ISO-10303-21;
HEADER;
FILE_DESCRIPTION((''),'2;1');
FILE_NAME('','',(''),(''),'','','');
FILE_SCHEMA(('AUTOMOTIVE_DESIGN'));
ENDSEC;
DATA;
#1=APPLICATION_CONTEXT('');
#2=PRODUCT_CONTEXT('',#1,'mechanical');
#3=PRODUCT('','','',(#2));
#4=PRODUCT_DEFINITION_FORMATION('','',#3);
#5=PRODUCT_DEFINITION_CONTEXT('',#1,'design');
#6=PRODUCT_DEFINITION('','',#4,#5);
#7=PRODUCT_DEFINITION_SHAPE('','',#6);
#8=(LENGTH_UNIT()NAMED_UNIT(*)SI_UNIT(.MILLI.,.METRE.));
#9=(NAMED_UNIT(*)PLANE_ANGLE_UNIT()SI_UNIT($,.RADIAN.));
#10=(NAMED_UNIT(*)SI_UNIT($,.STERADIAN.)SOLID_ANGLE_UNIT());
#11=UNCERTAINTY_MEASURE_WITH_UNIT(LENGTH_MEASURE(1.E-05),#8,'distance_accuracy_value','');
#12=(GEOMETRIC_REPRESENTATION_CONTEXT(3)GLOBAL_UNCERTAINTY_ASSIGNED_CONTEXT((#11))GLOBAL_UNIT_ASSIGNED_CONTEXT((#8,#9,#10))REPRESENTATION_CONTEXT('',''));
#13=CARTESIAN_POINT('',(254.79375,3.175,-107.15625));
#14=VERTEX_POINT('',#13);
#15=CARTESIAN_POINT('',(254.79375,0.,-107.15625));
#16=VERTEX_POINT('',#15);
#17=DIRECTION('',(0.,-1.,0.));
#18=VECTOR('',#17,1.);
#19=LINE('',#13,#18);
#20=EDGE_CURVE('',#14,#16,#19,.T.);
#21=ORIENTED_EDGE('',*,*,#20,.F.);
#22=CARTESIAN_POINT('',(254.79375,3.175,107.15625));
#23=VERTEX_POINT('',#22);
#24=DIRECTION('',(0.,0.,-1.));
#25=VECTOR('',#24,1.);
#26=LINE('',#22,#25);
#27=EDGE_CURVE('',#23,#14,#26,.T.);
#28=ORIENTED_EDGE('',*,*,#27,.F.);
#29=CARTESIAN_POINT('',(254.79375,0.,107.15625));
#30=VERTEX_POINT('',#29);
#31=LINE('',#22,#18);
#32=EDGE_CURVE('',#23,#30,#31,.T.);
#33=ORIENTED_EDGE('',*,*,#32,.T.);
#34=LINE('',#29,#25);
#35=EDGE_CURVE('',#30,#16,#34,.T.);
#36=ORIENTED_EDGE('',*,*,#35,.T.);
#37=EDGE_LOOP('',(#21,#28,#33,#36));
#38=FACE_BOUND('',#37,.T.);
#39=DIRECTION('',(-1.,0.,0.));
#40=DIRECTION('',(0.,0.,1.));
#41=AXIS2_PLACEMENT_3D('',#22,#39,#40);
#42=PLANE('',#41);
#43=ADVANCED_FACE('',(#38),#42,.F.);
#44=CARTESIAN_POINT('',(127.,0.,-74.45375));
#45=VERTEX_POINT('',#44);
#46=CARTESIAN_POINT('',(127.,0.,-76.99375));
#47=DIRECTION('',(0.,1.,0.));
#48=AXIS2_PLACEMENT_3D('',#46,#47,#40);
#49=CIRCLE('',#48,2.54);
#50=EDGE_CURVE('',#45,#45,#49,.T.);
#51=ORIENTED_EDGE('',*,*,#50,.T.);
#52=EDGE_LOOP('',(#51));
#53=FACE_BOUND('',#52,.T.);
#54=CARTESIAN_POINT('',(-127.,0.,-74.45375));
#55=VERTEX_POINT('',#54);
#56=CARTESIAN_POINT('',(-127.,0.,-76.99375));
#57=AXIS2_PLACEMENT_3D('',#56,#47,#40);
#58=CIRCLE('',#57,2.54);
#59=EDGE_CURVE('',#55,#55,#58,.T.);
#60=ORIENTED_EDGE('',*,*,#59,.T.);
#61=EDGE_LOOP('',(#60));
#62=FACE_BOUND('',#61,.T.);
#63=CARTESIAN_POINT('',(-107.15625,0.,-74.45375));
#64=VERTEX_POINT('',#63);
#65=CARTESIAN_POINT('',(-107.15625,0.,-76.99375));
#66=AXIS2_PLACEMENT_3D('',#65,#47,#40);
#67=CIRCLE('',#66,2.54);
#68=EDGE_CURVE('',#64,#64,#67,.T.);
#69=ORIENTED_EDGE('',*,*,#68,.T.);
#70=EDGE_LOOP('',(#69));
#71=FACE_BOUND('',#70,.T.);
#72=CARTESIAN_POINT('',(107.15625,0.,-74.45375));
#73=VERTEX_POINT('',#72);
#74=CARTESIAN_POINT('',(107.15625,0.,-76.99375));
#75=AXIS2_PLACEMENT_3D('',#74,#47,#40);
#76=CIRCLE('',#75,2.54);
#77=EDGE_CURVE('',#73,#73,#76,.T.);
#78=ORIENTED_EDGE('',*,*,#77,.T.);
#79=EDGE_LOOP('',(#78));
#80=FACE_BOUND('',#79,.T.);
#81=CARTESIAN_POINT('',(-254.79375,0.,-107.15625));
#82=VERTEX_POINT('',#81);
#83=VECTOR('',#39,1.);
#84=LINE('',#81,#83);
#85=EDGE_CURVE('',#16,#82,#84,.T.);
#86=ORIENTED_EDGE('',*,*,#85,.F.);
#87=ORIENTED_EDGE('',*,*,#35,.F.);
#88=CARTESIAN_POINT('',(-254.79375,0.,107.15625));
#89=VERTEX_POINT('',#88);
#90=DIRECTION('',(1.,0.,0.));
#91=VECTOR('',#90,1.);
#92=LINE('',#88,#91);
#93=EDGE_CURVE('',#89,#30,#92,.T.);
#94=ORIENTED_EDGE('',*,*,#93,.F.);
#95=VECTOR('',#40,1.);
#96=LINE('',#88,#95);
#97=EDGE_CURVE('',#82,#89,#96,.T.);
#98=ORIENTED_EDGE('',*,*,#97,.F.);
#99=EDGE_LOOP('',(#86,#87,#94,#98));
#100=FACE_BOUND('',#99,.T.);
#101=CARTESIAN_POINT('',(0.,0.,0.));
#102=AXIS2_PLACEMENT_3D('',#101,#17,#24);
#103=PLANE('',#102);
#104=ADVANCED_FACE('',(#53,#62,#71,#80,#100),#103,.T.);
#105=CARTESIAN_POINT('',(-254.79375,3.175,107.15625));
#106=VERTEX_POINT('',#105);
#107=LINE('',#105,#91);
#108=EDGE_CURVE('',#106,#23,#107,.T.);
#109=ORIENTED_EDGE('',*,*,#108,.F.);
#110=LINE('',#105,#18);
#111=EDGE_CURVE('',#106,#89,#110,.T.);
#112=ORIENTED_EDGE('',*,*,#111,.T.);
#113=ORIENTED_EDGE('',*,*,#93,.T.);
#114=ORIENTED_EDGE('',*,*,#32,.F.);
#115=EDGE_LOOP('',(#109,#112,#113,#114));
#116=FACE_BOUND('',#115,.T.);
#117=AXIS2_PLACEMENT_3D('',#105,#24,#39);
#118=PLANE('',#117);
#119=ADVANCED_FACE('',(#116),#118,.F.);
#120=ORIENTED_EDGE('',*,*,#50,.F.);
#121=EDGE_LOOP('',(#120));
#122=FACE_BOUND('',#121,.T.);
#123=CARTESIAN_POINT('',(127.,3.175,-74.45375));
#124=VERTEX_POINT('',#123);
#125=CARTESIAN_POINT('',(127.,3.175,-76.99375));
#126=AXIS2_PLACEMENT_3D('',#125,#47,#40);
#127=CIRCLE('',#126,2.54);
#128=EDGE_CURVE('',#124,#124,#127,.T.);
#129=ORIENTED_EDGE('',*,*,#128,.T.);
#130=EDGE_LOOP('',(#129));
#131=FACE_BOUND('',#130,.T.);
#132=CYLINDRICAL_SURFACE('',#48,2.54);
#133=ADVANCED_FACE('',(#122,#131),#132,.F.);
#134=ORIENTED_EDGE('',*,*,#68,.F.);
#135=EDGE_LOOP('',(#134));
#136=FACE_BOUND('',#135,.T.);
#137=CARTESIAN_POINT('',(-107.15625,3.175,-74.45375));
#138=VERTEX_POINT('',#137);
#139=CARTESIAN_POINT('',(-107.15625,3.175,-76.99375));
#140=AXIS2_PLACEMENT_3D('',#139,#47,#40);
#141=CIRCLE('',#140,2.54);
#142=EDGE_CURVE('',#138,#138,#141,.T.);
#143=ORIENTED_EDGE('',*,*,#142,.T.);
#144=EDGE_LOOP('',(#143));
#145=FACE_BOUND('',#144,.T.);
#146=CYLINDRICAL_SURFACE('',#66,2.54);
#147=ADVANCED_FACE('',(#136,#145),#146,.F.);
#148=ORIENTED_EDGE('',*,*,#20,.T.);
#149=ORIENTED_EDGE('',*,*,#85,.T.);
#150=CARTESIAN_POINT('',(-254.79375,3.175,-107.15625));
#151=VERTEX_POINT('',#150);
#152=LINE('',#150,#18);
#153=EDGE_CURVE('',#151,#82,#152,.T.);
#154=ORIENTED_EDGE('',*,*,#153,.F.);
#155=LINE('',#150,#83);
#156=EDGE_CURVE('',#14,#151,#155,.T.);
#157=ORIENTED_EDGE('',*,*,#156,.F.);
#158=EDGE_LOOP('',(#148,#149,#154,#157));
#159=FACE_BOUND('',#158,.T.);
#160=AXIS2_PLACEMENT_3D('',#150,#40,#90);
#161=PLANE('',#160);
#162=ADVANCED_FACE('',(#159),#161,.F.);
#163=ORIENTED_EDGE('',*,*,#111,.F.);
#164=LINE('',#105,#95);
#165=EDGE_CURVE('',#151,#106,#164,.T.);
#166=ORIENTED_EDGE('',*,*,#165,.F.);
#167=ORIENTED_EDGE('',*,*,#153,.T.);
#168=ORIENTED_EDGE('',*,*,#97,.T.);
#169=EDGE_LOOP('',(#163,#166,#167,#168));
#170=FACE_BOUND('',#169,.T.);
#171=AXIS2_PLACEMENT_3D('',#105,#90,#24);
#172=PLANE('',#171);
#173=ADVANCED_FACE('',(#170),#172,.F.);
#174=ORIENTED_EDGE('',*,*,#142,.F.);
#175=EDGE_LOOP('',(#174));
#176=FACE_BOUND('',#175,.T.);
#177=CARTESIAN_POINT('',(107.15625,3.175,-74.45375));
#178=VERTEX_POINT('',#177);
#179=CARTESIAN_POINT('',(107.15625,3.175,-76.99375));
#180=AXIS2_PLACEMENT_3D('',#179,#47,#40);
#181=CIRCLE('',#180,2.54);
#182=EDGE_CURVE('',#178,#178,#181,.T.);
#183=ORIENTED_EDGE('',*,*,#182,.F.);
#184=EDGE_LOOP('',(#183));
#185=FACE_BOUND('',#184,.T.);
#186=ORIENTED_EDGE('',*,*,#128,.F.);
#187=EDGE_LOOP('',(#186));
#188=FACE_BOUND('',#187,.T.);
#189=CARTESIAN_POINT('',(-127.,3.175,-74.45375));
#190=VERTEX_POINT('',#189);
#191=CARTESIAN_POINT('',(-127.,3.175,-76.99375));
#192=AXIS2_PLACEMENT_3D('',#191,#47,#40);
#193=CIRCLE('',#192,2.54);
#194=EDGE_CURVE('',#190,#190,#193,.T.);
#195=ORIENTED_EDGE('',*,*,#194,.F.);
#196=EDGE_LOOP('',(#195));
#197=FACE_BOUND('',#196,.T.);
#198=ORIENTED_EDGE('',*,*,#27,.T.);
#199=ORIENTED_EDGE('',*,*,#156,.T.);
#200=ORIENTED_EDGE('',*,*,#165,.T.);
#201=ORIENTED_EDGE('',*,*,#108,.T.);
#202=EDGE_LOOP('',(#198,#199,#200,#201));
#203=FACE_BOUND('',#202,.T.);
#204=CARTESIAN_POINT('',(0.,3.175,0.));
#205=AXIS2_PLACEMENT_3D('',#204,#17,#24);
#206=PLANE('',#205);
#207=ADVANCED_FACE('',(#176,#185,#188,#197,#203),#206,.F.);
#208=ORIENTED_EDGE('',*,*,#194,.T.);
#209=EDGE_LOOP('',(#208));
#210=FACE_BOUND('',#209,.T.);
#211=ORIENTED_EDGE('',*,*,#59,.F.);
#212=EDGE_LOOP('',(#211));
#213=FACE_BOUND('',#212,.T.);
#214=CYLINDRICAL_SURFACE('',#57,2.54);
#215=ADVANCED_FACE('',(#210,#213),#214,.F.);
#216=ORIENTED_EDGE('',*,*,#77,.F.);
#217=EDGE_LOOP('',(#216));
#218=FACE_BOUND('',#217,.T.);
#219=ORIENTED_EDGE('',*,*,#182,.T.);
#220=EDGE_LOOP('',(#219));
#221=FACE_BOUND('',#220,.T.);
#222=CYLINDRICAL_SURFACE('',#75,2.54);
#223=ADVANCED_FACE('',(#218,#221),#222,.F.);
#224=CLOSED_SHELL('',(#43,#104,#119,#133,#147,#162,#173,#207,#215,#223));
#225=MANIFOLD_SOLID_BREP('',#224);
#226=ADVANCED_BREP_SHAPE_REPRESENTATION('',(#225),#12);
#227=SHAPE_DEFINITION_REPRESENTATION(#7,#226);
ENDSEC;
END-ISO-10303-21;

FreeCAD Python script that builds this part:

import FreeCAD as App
import Part
import Sketcher
from FreeCAD import Vector
Q = App.Units.Quantity

doc = App.newDocument("Part")
body = doc.addObject("PartDesign::Body", "Body")

# Sketch on XZ plane
sketch1 = body.newObject("Sketcher::SketchObject", "Sketch")
sketch1.AttachmentSupport = (doc.getObject("XZ_Plane"), [""])
sketch1.MapMode = "FlatFace"
sketch1.addGeometry(Part.LineSegment(Vector(-255, -107, 0), Vector(-255, 107, 0)), False)
sketch1.addGeometry(Part.LineSegment(Vector(-255, 107, 0), Vector(255, 107, 0)), False)
sketch1.addGeometry(Part.LineSegment(Vector(255, 107, 0), Vector(255, -107, 0)), False)
sketch1.addGeometry(Part.LineSegment(Vector(255, -107, 0), Vector(-255, -107, 0)), False)
sketch1.addConstraint(Sketcher.Constraint("Coincident", 0, 2, 1, 1))
sketch1.addConstraint(Sketcher.Constraint("Coincident", 1, 2, 2, 1))
sketch1.addConstraint(Sketcher.Constraint("Coincident", 2, 2, 3, 1))
sketch1.addConstraint(Sketcher.Constraint("Coincident", 3, 2, 0, 1))
sketch1.addConstraint(Sketcher.Constraint("Vertical", 0))
sketch1.addConstraint(Sketcher.Constraint("Horizontal", 1))
sketch1.addConstraint(Sketcher.Constraint("Vertical", 2))
sketch1.addConstraint(Sketcher.Constraint("Horizontal", 3))
sketch1.addConstraint(Sketcher.Constraint("Symmetric", 0, 2, 2, 2, -1, 1))
sketch1.addConstraint(Sketcher.Constraint("DistanceX", 1, 1, 1, 2, Q("20.0625 in")))
sketch1.addConstraint(Sketcher.Constraint("DistanceY", 0, 1, 0, 2, Q("8.4375 in")))
pad1 = body.newObject("PartDesign::Pad", "Pad")
pad1.Profile = sketch1
pad1.Length = Q("0.125 in")
pad1.Reversed = True

# Sketch on XZ plane
sketch2 = body.newObject("Sketcher::SketchObject", "Sketch001")
sketch2.AttachmentSupport = (doc.getObject("XZ_Plane"), [""])
sketch2.MapMode = "FlatFace"
sketch2.AttachmentOffset = App.Placement(Vector(0, 0, -0.125 * 25.4), App.Rotation())
sketch2.addGeometry(Part.Circle(Vector(-127, -77, 0), Vector(0, 0, 1), 2.5), False)
sketch2.addGeometry(Part.Circle(Vector(-107.2, -77, 0), Vector(0, 0, 1), 2.5), False)
sketch2.addGeometry(Part.Circle(Vector(107.2, -77, 0), Vector(0, 0, 1), 2.5), False)
sketch2.addGeometry(Part.Circle(Vector(127, -77, 0), Vector(0, 0, 1), 2.5), False)
sketch2.addConstraint(Sketcher.Constraint("Equal", 0, 1))
sketch2.addConstraint(Sketcher.Constraint("Equal", 1, 2))
sketch2.addConstraint(Sketcher.Constraint("Equal", 2, 3))
sketch2.addConstraint(Sketcher.Constraint("Symmetric", 1, 3, 2, 3, -2))
sketch2.addConstraint(Sketcher.Constraint("Symmetric", 0, 3, 3, 3, -2))
sketch2.addConstraint(Sketcher.Constraint("Horizontal", 0, 3, 1, 3))
sketch2.addConstraint(Sketcher.Constraint("Diameter", 0, Q("0.2 in")))
sketch2.addConstraint(Sketcher.Constraint("DistanceX", 0, 3, -1, 1, Q("5 in")))
sketch2.addConstraint(Sketcher.Constraint("DistanceY", 0, 3, -1, 1, Q("3.03125 in")))
sketch2.addConstraint(Sketcher.Constraint("DistanceX", 1, 3, -1, 1, Q("4.21875 in")))
pocket1 = body.newObject("PartDesign::Pocket", "Pocket")
pocket1.Profile = sketch2
pocket1.Length = Q("0.125 in")
pocket1.Reversed = True

doc.recompute()
